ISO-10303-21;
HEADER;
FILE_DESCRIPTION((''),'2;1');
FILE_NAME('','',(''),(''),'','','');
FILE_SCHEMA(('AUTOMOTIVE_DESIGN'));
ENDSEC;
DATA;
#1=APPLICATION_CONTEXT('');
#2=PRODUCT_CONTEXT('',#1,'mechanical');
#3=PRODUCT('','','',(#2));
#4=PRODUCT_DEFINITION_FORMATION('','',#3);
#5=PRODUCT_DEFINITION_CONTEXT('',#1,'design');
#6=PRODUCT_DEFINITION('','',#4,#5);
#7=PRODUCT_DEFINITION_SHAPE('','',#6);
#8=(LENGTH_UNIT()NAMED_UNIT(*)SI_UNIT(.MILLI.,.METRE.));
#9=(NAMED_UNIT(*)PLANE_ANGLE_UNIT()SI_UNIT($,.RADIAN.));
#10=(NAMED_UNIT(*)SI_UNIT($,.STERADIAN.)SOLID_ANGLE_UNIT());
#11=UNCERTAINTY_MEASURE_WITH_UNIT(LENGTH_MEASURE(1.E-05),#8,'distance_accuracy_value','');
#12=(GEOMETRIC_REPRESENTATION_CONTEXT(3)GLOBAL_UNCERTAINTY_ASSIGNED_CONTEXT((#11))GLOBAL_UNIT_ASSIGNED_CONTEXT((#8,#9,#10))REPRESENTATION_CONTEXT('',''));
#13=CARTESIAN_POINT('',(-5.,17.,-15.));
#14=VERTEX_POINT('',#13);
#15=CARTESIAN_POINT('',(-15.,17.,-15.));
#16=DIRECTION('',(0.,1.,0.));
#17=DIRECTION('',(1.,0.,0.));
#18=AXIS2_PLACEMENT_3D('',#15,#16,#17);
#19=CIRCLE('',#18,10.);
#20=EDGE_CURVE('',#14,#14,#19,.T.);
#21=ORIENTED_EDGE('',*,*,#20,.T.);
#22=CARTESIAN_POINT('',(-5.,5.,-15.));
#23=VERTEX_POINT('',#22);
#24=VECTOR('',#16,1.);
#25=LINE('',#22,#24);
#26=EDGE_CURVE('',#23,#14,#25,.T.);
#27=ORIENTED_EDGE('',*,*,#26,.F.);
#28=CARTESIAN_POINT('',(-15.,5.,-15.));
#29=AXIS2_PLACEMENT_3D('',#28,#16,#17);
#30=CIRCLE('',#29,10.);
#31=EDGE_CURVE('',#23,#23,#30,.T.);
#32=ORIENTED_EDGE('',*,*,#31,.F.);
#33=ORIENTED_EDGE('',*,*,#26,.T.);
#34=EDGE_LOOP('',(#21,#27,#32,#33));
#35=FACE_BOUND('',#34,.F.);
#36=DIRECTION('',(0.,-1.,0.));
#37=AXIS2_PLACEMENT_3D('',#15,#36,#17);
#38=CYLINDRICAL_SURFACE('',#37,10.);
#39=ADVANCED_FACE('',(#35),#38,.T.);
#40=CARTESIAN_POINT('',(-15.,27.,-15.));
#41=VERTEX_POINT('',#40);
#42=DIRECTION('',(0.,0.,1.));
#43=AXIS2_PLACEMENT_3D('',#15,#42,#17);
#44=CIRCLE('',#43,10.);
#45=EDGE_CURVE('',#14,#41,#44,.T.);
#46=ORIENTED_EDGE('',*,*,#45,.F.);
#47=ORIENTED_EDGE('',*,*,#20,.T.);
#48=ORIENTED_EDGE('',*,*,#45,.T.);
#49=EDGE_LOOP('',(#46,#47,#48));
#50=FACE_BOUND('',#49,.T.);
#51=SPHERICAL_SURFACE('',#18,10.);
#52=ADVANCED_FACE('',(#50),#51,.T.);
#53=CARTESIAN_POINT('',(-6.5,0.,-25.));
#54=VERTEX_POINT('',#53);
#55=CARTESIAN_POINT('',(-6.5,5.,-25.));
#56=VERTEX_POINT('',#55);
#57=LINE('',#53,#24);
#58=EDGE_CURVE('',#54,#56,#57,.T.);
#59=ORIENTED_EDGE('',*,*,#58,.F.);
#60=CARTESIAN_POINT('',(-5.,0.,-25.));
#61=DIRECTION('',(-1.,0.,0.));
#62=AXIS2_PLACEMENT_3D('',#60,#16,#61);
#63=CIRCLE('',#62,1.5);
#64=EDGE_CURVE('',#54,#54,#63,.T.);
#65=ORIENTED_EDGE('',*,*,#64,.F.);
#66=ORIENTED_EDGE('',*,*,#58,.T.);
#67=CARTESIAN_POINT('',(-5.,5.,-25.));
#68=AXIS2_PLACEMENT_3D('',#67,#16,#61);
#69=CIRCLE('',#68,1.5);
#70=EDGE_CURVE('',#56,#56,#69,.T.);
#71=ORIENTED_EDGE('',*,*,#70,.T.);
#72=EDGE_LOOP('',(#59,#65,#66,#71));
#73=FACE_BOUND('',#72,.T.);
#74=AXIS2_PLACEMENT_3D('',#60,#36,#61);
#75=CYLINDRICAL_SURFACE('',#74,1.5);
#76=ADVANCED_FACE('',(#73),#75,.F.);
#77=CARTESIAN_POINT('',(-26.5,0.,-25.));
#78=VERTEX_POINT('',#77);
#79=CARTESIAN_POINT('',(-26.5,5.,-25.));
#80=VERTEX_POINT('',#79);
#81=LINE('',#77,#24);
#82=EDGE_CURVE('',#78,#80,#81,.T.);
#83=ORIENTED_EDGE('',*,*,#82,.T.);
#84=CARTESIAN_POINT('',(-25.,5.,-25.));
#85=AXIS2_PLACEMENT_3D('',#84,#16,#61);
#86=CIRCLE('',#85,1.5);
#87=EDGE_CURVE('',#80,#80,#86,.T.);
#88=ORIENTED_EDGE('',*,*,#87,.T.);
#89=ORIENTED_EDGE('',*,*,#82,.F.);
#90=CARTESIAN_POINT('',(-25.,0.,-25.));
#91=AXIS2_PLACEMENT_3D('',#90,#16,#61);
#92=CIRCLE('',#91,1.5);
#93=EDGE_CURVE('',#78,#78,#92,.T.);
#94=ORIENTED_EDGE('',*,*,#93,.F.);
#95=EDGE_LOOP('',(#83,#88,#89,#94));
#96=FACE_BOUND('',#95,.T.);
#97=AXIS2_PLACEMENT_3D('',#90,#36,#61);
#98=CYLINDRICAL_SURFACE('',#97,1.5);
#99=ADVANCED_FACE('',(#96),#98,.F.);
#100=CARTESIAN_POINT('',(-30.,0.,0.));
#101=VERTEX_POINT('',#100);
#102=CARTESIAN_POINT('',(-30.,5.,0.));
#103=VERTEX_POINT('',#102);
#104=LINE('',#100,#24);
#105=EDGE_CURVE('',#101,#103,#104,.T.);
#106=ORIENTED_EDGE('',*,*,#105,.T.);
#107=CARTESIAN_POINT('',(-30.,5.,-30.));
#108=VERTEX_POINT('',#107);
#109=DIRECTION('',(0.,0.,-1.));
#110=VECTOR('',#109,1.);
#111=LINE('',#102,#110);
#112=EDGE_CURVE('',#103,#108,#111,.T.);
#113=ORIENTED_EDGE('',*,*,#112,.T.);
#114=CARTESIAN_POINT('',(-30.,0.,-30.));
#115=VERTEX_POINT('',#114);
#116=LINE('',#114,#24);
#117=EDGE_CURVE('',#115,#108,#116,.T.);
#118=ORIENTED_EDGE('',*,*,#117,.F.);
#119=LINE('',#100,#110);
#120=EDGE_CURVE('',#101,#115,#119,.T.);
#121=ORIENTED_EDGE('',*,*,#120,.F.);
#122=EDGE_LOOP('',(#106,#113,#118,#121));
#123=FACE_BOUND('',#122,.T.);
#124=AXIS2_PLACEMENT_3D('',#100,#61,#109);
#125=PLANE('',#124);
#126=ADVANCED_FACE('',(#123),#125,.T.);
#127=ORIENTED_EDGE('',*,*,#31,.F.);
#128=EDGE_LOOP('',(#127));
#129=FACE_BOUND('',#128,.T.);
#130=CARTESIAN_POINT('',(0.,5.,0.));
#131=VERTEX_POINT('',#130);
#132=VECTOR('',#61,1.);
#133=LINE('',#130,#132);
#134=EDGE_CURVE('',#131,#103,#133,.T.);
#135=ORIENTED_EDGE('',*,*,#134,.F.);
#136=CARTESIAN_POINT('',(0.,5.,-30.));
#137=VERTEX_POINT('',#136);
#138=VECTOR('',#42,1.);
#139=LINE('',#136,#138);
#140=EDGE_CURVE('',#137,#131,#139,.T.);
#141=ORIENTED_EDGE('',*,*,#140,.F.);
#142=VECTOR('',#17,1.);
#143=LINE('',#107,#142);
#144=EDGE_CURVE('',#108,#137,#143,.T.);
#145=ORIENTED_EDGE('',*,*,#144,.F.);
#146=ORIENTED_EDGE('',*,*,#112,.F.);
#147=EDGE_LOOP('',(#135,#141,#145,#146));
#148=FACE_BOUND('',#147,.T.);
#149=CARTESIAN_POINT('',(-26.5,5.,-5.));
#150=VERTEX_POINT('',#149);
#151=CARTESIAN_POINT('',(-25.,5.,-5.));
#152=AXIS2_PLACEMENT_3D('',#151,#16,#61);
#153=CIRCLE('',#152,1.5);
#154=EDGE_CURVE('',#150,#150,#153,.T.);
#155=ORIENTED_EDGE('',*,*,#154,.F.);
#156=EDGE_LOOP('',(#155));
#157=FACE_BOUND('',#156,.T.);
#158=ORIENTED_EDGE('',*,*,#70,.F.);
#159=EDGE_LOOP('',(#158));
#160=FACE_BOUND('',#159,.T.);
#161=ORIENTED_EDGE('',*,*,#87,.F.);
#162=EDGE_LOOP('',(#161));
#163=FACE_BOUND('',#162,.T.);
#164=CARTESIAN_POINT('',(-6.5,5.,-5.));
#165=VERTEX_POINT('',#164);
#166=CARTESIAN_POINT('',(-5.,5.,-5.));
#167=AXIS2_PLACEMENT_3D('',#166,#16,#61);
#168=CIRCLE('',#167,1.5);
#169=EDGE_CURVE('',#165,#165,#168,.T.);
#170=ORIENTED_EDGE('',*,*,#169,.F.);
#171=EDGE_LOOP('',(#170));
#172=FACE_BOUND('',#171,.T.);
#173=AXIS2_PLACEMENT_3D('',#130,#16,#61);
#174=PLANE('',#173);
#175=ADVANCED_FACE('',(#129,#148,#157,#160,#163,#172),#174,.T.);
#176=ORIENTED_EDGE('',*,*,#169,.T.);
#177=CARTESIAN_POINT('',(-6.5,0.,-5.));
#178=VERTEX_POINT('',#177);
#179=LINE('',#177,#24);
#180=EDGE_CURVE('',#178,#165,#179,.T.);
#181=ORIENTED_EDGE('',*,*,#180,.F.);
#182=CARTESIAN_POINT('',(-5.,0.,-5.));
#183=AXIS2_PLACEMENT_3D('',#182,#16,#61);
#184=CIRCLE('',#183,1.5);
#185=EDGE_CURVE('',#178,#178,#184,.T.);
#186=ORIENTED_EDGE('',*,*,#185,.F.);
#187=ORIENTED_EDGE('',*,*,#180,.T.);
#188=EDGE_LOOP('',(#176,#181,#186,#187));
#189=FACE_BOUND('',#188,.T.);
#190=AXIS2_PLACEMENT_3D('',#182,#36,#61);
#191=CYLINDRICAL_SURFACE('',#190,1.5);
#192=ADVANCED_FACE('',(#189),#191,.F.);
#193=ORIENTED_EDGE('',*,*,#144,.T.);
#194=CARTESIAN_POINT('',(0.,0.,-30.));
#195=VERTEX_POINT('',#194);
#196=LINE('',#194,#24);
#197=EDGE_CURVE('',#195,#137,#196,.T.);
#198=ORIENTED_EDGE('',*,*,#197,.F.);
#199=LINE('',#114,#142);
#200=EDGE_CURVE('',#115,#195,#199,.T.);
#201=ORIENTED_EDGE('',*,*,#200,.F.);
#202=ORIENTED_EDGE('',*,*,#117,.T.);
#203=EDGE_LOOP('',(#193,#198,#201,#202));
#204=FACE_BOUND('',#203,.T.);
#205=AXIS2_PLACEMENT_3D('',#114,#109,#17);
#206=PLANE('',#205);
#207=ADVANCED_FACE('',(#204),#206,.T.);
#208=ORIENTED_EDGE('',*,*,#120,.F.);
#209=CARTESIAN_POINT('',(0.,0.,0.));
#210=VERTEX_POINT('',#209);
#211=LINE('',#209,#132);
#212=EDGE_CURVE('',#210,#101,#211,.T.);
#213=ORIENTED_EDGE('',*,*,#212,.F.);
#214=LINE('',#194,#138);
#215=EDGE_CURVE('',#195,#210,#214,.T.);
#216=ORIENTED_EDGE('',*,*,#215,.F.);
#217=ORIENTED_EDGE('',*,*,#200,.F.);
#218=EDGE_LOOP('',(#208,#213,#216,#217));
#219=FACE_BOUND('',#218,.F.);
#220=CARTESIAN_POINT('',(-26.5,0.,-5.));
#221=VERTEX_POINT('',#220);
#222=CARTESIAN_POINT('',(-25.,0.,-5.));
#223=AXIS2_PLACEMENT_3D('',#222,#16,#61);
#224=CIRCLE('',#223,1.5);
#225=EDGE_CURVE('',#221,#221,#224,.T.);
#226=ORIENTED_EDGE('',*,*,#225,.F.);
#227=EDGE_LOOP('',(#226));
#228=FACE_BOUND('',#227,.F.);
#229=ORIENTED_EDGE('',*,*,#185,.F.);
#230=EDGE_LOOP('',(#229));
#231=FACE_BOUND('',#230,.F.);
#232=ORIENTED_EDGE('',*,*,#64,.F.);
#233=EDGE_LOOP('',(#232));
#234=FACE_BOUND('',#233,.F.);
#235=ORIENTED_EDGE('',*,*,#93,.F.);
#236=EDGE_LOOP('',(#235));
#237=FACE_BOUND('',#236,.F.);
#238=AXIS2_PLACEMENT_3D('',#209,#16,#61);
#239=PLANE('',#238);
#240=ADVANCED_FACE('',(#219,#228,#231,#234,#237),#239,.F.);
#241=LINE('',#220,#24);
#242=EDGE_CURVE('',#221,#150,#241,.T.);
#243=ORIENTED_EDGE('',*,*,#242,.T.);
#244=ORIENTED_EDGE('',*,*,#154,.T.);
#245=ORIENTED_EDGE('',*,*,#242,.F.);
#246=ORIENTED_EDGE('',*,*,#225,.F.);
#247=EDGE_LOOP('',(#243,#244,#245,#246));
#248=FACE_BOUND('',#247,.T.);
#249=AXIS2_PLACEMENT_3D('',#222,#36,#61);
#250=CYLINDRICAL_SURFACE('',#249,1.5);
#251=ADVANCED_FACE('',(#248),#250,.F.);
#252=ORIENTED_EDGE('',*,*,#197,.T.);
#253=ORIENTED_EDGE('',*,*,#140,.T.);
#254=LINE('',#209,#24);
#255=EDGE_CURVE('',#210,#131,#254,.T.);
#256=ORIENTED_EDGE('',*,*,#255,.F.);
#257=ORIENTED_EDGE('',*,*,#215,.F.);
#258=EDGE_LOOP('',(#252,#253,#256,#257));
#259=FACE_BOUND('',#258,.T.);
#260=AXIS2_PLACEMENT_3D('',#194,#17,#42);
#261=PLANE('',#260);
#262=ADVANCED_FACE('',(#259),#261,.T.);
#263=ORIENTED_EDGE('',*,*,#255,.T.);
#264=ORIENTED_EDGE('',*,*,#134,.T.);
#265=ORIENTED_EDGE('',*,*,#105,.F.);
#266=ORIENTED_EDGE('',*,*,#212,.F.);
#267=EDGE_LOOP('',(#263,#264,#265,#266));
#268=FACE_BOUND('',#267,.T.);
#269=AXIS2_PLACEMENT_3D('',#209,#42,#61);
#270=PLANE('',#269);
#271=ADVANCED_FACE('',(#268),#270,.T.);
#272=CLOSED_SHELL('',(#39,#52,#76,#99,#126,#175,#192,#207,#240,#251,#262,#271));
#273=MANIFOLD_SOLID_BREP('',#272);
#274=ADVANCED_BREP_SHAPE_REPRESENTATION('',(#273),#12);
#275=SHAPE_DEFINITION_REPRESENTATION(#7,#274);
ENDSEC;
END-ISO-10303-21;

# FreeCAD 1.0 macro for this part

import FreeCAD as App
import Part
import Sketcher

V = App.Vector
Q = App.Units.Quantity


def edges_at(feature, points):
    """Names of the edges that pass closest to the given points."""
    edges = feature.Shape.Edges
    near = lambda p: min(range(len(edges)), key=lambda i: edges[i].distToShape(Part.Vertex(*p))[0])
    return sorted({f"Edge{near(p) + 1}" for p in points})

doc = App.newDocument("Part")
params = doc.addObject("Spreadsheet::Sheet", "Params")
for row, (alias, value) in enumerate([
    ("sketch1_diameter", "3 mm"),
    ("sketch1_width", "30 mm"),
    ("pad1_length", "5 mm"),
    ("sketch2_diameter", "20 mm"),
    ("pad2_length", "12 mm"),
    ("sketch3_diameter", "20 mm"),
    ("pad3_length", "10 mm"),
    ("fillet_radius", "10 mm"),
], start=1):
    params.set(f"A{row}", alias)
    params.set(f"B{row}", "=" + value)
    params.setAlias(f"B{row}", alias)

body = doc.addObject("PartDesign::Body", "Body")

# Sketch on XZ plane
sketch1 = body.newObject("Sketcher::SketchObject", "Sketch")
sketch1.AttachmentSupport = (doc.getObject("XZ_Plane"), [""])
sketch1.MapMode = "FlatFace"
sketch1.addGeometry([
    Part.LineSegment(V(-30, 0, 0), V(0, 0, 0)),  # 0
    Part.LineSegment(V(0, 0, 0), V(0, -30, 0)),  # 1
    Part.LineSegment(V(0, -30, 0), V(-30, -30, 0)),  # 2
    Part.LineSegment(V(-30, -30, 0), V(-30, 0, 0)),  # 3
    Part.Circle(V(-5, -25, 0), V(0, 0, 1), 1.5),  # 4
    Part.Circle(V(-25, -25, 0), V(0, 0, 1), 1.5),  # 5
    Part.Circle(V(-5, -5, 0), V(0, 0, 1), 1.5),  # 6
    Part.Circle(V(-25, -5, 0), V(0, 0, 1), 1.5),  # 7
], False)
sketch1.addConstraint([
    Sketcher.Constraint("Coincident", 0, 2, 1, 1),
    Sketcher.Constraint("Coincident", 1, 2, 2, 1),
    Sketcher.Constraint("Coincident", 2, 2, 3, 1),
    Sketcher.Constraint("Coincident", 3, 2, 0, 1),
    Sketcher.Constraint("Horizontal", 0),
    Sketcher.Constraint("Vertical", 1),
    Sketcher.Constraint("Horizontal", 2),
    Sketcher.Constraint("Vertical", 3),
    Sketcher.Constraint("Coincident", 0, 2, -1, 1),
    Sketcher.Constraint("Equal", 4, 5),
    Sketcher.Constraint("Equal", 5, 6),
    Sketcher.Constraint("Equal", 6, 7),
    Sketcher.Constraint("Horizontal", 4, 3, 5, 3),
    Sketcher.Constraint("Horizontal", 6, 3, 7, 3),
    Sketcher.Constraint("Vertical", 4, 3, 6, 3),
    Sketcher.Constraint("Vertical", 5, 3, 7, 3),
    Sketcher.Constraint("Equal", 2, 1),
    Sketcher.Constraint("Diameter", 4, Q("3 mm")),
    Sketcher.Constraint("DistanceX", 0, 1, 0, 2, Q("30 mm")),
    Sketcher.Constraint("DistanceX", 4, 3, -1, 1, Q("5 mm")),
    Sketcher.Constraint("DistanceY", 6, 3, -1, 1, Q("5 mm")),
    Sketcher.Constraint("DistanceX", 5, 3, 4, 3, Q("20 mm")),
    Sketcher.Constraint("DistanceY", 4, 3, 6, 3, Q("20 mm")),
])
sketch1.setExpression("Constraints[17]", "Params.sketch1_diameter")
sketch1.setExpression("Constraints[18]", "Params.sketch1_width")
pad1 = body.newObject("PartDesign::Pad", "Pad")
pad1.Profile = sketch1
pad1.setExpression("Length", "Params.pad1_length")
pad1.Reversed = True

# Sketch on XZ plane
sketch2 = body.newObject("Sketcher::SketchObject", "Sketch001")
sketch2.AttachmentSupport = (doc.getObject("XZ_Plane"), [""])
sketch2.MapMode = "FlatFace"
sketch2.AttachmentOffset = App.Placement(V(0, 0, -5), App.Rotation())
sketch2.addGeometry(Part.Circle(V(-15, -15, 0), V(0, 0, 1), 10), False)
sketch2.addConstraint([
    Sketcher.Constraint("Diameter", 0, Q("20 mm")),
    Sketcher.Constraint("DistanceX", 0, 3, -1, 1, Q("15 mm")),
    Sketcher.Constraint("DistanceY", 0, 3, -1, 1, Q("15 mm")),
])
sketch2.setExpression("Constraints[0]", "Params.sketch2_diameter")
pad2 = body.newObject("PartDesign::Pad", "Pad001")
pad2.Profile = sketch2
pad2.setExpression("Length", "Params.pad2_length")
pad2.Reversed = True

# Sketch on XZ plane
sketch3 = body.newObject("Sketcher::SketchObject", "Sketch002")
sketch3.AttachmentSupport = (doc.getObject("XZ_Plane"), [""])
sketch3.MapMode = "FlatFace"
sketch3.AttachmentOffset = App.Placement(V(0, 0, -17), App.Rotation())
sketch3.addGeometry(Part.Circle(V(-15, -15, 0), V(0, 0, 1), 10), False)
sketch3.addConstraint([
    Sketcher.Constraint("Diameter", 0, Q("20 mm")),
    Sketcher.Constraint("DistanceX", 0, 3, -1, 1, Q("15 mm")),
    Sketcher.Constraint("DistanceY", 0, 3, -1, 1, Q("15 mm")),
])
sketch3.setExpression("Constraints[0]", "Params.sketch3_diameter")
pad3 = body.newObject("PartDesign::Pad", "Pad002")
pad3.Profile = sketch3
pad3.setExpression("Length", "Params.pad3_length")
pad3.Reversed = True
doc.recompute()

fillet = body.newObject("PartDesign::Fillet", "Fillet")
fillet.Base = (pad3, edges_at(pad3, [(-25, 27, -15)]))
fillet.setExpression("Radius", "Params.fillet_radius")

doc.recompute()
